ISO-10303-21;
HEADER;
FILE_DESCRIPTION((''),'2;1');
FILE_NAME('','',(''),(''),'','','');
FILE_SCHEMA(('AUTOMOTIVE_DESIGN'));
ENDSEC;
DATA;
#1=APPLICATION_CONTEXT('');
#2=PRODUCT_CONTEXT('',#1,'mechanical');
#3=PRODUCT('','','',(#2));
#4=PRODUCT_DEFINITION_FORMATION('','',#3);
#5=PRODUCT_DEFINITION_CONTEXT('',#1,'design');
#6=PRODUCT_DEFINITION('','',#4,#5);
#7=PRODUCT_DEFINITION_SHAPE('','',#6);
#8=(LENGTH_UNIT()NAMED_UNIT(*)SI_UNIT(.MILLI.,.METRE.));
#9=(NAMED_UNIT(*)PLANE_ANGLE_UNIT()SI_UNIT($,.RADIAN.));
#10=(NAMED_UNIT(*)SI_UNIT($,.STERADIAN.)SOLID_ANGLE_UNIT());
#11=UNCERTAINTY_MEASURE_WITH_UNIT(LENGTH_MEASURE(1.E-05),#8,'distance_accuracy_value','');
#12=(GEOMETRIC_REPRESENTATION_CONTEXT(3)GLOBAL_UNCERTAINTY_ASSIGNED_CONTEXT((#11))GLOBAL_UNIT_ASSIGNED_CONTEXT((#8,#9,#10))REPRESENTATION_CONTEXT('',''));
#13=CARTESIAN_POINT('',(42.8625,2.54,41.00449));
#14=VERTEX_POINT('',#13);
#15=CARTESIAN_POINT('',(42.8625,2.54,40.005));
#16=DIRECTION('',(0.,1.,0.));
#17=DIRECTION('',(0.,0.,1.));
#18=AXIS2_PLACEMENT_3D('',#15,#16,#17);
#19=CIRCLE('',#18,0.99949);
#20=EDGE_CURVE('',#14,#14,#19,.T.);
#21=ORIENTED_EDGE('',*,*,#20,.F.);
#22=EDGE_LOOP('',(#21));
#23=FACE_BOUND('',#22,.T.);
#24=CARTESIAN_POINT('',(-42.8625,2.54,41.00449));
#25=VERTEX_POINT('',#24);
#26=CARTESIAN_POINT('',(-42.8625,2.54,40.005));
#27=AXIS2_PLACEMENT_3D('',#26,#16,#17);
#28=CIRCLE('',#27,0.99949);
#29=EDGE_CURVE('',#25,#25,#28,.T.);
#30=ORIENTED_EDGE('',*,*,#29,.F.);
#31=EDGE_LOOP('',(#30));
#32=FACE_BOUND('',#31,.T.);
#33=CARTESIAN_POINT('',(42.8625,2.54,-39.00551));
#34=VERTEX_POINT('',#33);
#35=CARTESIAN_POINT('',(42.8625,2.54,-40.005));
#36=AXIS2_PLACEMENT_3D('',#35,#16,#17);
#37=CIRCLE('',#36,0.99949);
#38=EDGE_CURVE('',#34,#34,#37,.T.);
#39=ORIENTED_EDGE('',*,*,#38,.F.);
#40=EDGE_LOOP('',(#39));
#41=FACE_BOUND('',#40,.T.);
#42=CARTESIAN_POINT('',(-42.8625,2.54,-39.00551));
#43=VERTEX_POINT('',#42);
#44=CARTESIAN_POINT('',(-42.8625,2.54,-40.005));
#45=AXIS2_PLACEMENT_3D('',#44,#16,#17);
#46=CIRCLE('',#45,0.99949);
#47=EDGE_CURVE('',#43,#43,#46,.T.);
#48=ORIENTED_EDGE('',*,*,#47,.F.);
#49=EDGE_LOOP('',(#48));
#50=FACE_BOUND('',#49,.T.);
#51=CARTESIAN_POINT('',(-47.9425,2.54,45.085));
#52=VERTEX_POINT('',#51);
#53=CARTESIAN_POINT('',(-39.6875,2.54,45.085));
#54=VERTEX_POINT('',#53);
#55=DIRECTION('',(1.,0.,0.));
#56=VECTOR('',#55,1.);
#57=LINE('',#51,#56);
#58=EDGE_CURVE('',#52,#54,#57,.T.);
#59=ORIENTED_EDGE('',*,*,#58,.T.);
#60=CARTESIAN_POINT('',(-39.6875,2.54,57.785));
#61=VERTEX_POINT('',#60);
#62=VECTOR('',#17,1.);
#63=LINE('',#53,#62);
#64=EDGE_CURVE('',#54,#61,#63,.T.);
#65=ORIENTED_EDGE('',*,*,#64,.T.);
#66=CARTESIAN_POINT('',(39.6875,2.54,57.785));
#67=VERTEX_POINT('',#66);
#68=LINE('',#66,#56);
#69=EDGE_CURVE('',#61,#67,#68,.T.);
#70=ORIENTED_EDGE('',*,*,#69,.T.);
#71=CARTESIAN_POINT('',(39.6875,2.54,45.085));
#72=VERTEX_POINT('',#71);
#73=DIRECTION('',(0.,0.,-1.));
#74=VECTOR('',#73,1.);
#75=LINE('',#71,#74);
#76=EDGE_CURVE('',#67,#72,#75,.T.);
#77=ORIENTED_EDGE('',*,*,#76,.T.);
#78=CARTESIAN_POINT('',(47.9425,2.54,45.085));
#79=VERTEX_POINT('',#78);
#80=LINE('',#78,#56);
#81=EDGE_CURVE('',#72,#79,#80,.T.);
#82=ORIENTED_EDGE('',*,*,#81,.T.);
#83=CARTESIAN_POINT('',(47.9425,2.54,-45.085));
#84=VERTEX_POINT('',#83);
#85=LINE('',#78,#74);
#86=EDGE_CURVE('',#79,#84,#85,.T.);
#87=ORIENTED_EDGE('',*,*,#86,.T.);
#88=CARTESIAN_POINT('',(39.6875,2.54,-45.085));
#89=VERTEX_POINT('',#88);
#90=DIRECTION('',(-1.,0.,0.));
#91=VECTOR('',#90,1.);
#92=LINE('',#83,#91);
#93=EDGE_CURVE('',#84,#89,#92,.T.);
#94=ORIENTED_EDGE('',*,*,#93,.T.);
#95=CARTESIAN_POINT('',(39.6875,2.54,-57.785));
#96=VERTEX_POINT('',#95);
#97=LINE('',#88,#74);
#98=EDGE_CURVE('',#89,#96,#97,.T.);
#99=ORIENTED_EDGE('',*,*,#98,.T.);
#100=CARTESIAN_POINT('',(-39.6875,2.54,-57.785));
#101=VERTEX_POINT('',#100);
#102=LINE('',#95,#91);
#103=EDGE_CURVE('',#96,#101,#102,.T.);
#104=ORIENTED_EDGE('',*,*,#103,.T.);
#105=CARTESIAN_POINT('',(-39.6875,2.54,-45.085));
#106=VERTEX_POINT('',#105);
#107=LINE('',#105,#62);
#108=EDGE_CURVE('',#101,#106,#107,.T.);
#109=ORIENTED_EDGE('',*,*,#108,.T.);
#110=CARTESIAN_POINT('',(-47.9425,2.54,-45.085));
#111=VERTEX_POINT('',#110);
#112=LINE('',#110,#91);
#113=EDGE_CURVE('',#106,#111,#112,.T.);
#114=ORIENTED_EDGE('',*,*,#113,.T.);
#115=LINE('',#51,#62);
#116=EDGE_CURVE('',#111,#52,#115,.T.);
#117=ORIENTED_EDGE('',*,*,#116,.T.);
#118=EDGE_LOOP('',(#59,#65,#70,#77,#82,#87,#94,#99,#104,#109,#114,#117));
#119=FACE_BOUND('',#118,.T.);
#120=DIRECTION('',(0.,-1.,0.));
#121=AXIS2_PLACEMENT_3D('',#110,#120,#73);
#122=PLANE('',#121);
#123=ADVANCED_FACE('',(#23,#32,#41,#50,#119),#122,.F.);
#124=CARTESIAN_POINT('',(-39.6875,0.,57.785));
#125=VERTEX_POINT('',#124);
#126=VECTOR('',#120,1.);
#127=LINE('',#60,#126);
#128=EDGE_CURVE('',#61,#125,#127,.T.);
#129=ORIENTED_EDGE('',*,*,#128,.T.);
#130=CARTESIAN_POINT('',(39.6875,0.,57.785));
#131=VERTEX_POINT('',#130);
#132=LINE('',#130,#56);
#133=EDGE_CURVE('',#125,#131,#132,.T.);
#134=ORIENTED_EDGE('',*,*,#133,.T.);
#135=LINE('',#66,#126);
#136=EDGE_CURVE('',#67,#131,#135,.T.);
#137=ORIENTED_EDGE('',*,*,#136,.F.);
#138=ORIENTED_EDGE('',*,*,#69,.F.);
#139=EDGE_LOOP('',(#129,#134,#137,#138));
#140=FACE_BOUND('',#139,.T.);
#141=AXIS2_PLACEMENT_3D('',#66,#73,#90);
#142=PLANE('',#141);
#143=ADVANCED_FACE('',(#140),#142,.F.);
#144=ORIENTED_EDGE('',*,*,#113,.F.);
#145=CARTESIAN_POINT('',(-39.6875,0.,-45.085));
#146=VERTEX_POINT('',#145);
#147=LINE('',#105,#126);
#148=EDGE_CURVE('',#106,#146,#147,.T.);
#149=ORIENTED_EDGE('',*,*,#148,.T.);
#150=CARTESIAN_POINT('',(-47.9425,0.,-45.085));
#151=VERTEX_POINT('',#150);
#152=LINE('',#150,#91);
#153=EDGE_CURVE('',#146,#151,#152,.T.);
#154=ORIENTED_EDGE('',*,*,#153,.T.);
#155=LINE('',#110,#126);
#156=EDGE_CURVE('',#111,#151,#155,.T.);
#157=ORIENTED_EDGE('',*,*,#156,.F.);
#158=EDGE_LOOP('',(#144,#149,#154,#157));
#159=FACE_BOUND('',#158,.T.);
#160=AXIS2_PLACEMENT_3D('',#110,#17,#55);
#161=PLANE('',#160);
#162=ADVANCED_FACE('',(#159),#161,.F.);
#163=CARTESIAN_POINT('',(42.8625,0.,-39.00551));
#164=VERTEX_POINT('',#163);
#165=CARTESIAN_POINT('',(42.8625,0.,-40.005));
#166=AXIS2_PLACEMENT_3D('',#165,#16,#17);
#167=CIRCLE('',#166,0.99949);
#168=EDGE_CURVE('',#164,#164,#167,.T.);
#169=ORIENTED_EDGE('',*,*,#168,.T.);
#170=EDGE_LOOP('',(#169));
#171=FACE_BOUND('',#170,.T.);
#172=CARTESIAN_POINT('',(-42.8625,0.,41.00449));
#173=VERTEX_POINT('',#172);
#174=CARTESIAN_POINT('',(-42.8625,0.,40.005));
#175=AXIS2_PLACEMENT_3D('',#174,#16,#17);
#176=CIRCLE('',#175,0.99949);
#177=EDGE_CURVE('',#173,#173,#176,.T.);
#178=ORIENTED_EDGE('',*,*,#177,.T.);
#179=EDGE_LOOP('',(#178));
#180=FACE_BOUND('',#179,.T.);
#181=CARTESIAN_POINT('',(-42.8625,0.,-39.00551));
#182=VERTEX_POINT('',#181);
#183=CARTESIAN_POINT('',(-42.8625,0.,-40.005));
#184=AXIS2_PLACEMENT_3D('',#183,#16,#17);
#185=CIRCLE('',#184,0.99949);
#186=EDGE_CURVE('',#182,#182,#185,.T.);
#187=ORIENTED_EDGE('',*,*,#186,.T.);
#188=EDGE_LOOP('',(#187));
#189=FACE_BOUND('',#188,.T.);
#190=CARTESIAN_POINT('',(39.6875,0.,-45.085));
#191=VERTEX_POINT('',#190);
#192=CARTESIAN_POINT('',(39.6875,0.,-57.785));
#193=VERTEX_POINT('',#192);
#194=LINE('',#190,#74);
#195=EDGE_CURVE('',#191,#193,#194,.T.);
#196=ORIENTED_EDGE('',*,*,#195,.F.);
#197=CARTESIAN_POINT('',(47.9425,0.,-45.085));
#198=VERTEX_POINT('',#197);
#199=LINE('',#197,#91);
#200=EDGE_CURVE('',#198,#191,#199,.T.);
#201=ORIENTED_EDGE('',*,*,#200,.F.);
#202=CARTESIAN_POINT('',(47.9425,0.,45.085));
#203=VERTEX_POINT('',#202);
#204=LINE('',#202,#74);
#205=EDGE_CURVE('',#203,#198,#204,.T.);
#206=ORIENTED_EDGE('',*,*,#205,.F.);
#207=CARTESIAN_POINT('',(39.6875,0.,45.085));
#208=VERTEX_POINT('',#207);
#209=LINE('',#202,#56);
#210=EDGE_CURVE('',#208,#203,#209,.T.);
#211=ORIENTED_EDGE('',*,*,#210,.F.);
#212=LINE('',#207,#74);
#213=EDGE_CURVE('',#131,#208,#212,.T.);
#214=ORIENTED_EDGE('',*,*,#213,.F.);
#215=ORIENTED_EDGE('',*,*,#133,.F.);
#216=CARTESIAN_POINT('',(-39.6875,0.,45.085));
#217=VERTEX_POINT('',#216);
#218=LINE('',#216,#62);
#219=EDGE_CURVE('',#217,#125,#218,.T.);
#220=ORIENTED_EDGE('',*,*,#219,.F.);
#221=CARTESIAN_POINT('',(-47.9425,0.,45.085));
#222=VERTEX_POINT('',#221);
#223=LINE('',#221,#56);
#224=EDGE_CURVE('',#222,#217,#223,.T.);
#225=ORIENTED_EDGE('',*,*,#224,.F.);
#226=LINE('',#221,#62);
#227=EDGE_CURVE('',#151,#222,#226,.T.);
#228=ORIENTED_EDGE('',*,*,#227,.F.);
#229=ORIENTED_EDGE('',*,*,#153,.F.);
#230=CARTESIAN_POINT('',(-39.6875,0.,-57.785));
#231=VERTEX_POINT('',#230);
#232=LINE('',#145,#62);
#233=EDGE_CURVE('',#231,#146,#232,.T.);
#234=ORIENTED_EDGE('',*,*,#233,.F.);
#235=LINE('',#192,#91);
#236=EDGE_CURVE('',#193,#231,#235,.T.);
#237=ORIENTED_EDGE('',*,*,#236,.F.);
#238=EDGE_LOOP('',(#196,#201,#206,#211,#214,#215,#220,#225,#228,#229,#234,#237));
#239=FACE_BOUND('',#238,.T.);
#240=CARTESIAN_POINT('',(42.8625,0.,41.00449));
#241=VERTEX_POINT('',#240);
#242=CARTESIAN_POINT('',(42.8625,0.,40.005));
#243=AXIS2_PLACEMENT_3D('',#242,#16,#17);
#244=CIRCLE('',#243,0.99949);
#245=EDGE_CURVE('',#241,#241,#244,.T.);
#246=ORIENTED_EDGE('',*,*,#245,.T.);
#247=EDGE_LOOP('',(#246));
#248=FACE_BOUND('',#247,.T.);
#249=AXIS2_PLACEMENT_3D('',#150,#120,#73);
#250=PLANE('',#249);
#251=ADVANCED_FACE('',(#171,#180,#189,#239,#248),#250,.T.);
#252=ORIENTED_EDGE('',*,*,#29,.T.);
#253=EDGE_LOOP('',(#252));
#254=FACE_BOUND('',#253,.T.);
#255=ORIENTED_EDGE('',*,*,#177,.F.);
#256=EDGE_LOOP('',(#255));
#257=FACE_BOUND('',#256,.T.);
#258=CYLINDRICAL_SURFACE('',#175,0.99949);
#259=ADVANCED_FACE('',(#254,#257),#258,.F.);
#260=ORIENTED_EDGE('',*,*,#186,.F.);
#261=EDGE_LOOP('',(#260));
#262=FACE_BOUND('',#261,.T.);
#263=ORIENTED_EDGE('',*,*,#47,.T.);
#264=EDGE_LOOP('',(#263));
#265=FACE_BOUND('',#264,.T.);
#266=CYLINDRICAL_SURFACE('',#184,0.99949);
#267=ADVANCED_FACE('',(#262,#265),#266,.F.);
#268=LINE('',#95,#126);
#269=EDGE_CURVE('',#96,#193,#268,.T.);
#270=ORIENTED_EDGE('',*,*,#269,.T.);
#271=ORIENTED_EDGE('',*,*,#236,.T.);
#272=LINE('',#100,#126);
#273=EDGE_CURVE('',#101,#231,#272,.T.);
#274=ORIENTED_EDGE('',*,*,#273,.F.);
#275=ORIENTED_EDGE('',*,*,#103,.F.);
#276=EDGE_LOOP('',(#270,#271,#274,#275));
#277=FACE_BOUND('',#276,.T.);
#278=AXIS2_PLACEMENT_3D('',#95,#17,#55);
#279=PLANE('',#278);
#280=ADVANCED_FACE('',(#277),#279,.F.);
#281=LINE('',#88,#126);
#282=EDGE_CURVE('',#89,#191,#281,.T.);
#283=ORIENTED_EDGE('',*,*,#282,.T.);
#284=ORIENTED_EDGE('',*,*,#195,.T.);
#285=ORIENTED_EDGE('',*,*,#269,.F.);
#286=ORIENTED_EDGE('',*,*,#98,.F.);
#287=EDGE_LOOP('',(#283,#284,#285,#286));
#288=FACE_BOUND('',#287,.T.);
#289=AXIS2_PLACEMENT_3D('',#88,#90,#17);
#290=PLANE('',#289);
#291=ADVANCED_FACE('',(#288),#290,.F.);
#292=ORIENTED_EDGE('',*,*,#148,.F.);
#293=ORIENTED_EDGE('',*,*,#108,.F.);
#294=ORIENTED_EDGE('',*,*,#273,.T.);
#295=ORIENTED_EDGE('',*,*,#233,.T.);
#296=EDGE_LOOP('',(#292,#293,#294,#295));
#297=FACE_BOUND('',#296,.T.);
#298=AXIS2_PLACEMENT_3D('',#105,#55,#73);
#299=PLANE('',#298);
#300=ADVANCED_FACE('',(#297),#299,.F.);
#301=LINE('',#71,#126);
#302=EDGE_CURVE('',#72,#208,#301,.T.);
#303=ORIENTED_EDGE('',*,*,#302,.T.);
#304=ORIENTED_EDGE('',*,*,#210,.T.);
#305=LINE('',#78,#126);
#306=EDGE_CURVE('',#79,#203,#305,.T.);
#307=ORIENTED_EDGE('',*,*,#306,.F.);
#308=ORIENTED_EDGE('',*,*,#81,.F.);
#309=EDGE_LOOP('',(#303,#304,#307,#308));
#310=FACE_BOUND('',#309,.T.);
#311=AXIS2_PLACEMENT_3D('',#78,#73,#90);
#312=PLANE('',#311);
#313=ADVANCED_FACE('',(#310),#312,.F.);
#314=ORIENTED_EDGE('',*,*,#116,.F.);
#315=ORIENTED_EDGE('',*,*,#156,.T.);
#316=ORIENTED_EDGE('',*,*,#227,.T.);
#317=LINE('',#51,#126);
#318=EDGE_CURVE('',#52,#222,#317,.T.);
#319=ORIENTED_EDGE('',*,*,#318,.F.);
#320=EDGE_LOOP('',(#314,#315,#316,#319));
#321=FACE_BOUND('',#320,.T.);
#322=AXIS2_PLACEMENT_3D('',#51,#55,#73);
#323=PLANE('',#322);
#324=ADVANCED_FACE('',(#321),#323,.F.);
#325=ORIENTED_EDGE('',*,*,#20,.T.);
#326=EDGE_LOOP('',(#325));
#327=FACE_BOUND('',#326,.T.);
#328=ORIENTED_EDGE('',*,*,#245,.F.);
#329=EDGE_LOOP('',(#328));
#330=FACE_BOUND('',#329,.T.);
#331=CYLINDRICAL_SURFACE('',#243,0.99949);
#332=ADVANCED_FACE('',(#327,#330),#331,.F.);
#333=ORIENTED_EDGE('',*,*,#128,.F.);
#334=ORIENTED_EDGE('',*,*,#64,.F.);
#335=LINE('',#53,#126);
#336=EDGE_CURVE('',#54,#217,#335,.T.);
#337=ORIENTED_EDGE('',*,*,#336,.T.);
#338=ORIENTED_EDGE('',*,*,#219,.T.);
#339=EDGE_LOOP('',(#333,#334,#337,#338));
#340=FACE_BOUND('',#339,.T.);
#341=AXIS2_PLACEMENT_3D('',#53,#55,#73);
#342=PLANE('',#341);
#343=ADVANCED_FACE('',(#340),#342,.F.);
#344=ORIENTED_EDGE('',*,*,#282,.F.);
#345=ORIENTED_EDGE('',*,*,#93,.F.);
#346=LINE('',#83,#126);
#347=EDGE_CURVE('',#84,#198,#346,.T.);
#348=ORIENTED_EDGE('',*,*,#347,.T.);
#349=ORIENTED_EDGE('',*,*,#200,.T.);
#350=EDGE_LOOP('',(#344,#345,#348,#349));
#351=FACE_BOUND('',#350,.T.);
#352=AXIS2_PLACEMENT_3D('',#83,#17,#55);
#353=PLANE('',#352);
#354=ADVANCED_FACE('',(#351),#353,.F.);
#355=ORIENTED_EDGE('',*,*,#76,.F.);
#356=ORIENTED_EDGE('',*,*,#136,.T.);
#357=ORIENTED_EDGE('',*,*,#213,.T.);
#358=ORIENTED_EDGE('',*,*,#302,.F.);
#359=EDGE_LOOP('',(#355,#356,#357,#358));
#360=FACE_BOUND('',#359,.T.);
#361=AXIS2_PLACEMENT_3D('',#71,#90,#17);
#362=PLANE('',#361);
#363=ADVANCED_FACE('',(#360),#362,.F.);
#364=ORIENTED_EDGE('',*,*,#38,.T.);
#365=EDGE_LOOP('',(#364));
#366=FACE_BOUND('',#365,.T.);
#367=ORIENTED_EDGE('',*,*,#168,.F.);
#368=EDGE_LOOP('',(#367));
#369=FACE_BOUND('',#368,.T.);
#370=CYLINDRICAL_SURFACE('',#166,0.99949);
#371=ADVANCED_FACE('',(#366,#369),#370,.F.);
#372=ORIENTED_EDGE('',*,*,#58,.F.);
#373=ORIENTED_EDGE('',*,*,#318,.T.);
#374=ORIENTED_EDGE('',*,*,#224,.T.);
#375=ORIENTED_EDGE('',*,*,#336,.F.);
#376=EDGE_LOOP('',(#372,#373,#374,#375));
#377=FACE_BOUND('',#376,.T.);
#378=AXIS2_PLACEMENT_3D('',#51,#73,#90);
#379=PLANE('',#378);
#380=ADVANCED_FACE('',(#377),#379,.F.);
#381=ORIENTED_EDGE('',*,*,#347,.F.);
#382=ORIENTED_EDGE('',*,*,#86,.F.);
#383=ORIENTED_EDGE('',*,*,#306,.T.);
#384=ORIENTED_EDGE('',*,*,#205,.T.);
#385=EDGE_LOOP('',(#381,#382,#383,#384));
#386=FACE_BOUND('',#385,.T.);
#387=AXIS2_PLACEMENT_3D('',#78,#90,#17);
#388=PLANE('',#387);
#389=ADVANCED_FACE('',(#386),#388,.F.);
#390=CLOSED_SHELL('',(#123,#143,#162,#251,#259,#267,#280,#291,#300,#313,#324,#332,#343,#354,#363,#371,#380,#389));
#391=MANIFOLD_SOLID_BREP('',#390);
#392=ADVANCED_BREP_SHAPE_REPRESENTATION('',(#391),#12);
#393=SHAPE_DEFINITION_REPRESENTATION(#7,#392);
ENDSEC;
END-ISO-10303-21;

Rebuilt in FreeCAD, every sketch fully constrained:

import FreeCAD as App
import Part
import Sketcher

V = App.Vector
Q = App.Units.Quantity


def add_polygon(sketch, points):
    """Adds a closed chain of lines whose ends are joined by coincident constraints."""
    first, n = sketch.GeometryCount, len(points)
    for a, b in zip(points, points[1:] + points[:1]):
        sketch.addGeometry(Part.LineSegment(App.Vector(*a, 0), App.Vector(*b, 0)), False)
    for i in range(n):
        sketch.addConstraint(Sketcher.Constraint("Coincident", first + i, 2, first + (i + 1) % n, 1))

doc = App.newDocument("Part")
body = doc.addObject("PartDesign::Body", "Body")

# Sketch on XZ plane
sketch1 = doc.addObject("Sketcher::SketchObject", "Sketch")
body.addObject(sketch1)
sketch1.AttachmentSupport = (doc.XZ_Plane, [""])
sketch1.MapMode = "FlatFace"
add_polygon(sketch1, [(-40, -45), (-48, -45), (-48, 45), (-40, 45), (-40, 58), (40, 58), (40, 45), (48, 45), (48, -45), (40, -45), (40, -58), (-40, -58)])  # lines 0-11
sketch1.addConstraint([
    Sketcher.Constraint("Horizontal", 0),
    Sketcher.Constraint("Vertical", 1),
    Sketcher.Constraint("Horizontal", 2),
    Sketcher.Constraint("Vertical", 3),
    Sketcher.Constraint("Horizontal", 4),
    Sketcher.Constraint("Vertical", 5),
    Sketcher.Constraint("Horizontal", 6),
    Sketcher.Constraint("Vertical", 7),
    Sketcher.Constraint("Horizontal", 8),
    Sketcher.Constraint("Vertical", 9),
    Sketcher.Constraint("Horizontal", 10),
    Sketcher.Constraint("Vertical", 11),
    Sketcher.Constraint("Symmetric", 0, 2, 6, 2, -1, 1),
    Sketcher.Constraint("Symmetric", 2, 2, 8, 2, -1, 1),
    Sketcher.Constraint("Symmetric", 4, 2, 10, 2, -1, 1),
    Sketcher.Constraint("Symmetric", 2, 2, 5, 2, -2),
    Sketcher.Constraint("DistanceY", 3, 1, 3, 2, Q("0.5 in")),
    Sketcher.Constraint("DistanceY", 1, 1, 1, 2, Q("3.55 in")),
    Sketcher.Constraint("DistanceX", 0, 2, 0, 1, Q("0.325 in")),
    Sketcher.Constraint("DistanceX", 4, 1, 4, 2, Q("3.125 in")),
])
pad1 = doc.addObject("PartDesign::Pad", "Pad")
body.addObject(pad1)
pad1.Profile = sketch1
pad1.Length = Q("0.1 in")
pad1.Reversed = True

# Sketch on XZ plane
sketch2 = doc.addObject("Sketcher::SketchObject", "Sketch001")
body.addObject(sketch2)
sketch2.AttachmentSupport = (doc.XZ_Plane, [""])
sketch2.MapMode = "FlatFace"
sketch2.AttachmentOffset = App.Placement(V(0, 0, -0.1 * 25.4), App.Rotation())
sketch2.addGeometry([
    Part.Circle(V(42.9, 40, 0), V(0, 0, 1), 1),
    Part.Circle(V(42.9, -40, 0), V(0, 0, 1), 1),
    Part.Circle(V(-42.9, 40, 0), V(0, 0, 1), 1),
    Part.Circle(V(-42.9, -40, 0), V(0, 0, 1), 1),
], False)
sketch2.addConstraint([
    Sketcher.Constraint("Equal", 0, 1),
    Sketcher.Constraint("Equal", 1, 2),
    Sketcher.Constraint("Equal", 2, 3),
    Sketcher.Constraint("Symmetric", 1, 3, 2, 3, -1, 1),
    Sketcher.Constraint("Symmetric", 0, 3, 3, 3, -1, 1),
    Sketcher.Constraint("Symmetric", 0, 3, 2, 3, -2),
    Sketcher.Constraint("Diameter", 0, Q("0.0787 in")),
    Sketcher.Constraint("DistanceY", 1, 3, 0, 3, Q("3.15 in")),
    Sketcher.Constraint("DistanceX", -1, 1, 0, 3, Q("1.6875 in")),
])
pocket1 = doc.addObject("PartDesign::Pocket", "Pocket")
body.addObject(pocket1)
pocket1.Profile = sketch2
pocket1.Type = "ThroughAll"
pocket1.Reversed = True

doc.recompute()
